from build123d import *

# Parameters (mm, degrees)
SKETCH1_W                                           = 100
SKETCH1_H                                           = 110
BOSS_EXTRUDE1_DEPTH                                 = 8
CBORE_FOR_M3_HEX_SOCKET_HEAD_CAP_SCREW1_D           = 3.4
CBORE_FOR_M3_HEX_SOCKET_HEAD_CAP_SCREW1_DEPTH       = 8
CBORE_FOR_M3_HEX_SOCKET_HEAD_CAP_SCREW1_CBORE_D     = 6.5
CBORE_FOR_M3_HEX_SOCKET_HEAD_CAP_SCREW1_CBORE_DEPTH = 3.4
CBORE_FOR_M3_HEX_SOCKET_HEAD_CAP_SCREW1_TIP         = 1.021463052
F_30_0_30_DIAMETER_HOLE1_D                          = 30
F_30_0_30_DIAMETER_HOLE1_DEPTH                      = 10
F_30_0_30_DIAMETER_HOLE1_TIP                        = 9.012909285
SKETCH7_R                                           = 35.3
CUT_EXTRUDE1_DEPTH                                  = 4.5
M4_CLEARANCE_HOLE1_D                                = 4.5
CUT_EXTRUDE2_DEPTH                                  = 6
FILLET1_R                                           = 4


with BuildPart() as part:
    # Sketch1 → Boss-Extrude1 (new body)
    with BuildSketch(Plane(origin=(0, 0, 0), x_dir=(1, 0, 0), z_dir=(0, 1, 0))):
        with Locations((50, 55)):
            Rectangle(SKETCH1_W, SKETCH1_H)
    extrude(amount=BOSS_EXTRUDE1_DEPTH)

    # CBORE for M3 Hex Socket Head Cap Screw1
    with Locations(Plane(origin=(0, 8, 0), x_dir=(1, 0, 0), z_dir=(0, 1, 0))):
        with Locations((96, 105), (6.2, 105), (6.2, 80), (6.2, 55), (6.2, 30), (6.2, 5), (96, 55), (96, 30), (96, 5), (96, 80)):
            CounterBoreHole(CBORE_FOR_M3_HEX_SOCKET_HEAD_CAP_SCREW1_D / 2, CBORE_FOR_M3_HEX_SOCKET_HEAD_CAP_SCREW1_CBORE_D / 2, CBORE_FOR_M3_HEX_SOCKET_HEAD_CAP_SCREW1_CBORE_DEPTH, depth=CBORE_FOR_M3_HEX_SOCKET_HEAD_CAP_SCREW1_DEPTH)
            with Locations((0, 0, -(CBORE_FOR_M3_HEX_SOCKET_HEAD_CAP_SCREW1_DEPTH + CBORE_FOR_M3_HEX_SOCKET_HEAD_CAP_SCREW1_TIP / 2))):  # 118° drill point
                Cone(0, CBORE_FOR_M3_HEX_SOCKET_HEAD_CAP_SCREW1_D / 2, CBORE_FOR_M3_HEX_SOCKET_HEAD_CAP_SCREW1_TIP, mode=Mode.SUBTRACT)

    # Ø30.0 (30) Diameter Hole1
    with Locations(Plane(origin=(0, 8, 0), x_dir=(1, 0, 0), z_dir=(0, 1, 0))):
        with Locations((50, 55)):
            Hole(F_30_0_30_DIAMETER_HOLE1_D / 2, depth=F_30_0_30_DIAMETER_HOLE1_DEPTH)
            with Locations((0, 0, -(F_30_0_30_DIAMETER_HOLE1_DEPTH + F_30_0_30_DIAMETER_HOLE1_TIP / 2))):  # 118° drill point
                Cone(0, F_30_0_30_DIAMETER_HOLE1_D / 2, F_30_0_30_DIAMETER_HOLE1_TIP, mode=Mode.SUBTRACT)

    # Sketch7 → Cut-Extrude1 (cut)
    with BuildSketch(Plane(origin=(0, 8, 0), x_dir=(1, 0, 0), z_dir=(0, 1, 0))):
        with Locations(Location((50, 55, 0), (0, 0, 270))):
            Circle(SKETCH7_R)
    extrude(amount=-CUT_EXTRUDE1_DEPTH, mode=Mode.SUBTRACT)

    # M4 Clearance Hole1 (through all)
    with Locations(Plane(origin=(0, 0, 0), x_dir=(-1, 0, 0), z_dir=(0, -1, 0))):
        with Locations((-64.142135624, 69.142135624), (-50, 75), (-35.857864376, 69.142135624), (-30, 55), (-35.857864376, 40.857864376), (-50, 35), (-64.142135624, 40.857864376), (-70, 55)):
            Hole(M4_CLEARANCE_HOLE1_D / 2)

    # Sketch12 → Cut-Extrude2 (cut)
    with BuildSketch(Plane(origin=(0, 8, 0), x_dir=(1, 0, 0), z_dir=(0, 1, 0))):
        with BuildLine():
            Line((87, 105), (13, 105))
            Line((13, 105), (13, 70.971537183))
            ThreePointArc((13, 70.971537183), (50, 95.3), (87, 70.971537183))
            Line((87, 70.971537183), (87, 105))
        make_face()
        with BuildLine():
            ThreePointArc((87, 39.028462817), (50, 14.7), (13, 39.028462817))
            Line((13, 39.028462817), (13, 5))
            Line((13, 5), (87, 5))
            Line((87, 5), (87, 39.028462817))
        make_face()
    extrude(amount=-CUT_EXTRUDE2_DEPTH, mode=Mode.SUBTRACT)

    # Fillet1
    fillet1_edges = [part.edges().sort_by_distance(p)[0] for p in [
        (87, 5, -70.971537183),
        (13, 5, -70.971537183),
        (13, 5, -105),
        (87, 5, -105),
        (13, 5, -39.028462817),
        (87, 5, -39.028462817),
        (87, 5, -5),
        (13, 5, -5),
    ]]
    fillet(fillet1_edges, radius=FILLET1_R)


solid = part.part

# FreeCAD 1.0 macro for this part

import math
import FreeCAD as App
import Part
import Sketcher
from FreeCAD import Vector
Q = App.Units.Quantity


def edges_at(feature, points):
    """Names of the edges that pass closest to the given points."""
    edges = feature.Shape.Edges
    near = lambda p: min(range(len(edges)), key=lambda i: edges[i].distToShape(Part.Vertex(*p))[0])
    return sorted({f"Edge{near(p) + 1}" for p in points})


def add_polygon(sketch, points):
    """Adds a closed chain of lines whose ends are joined by coincident constraints."""
    first, n = sketch.GeometryCount, len(points)
    for a, b in zip(points, points[1:] + points[:1]):
        sketch.addGeometry(Part.LineSegment(App.Vector(*a, 0), App.Vector(*b, 0)), False)
    for i in range(n):
        sketch.addConstraint(Sketcher.Constraint("Coincident", first + i, 2, first + (i + 1) % n, 1))

doc = App.newDocument("Part")
body = doc.addObject("PartDesign::Body", "Body")

# Sketch on XZ plane
sketch1 = body.newObject("Sketcher::SketchObject", "Sketch")
sketch1.AttachmentSupport = (doc.getObject("XZ_Plane"), [""])
sketch1.MapMode = "FlatFace"
add_polygon(sketch1, [(0, -110), (0, 0), (100, 0), (100, -110)])  # lines 0-3
sketch1.addConstraint(Sketcher.Constraint("Vertical", 0))
sketch1.addConstraint(Sketcher.Constraint("Horizontal", 1))
sketch1.addConstraint(Sketcher.Constraint("Vertical", 2))
sketch1.addConstraint(Sketcher.Constraint("Horizontal", 3))
sketch1.addConstraint(Sketcher.Constraint("Coincident", 0, 2, -1, 1))
sketch1.addConstraint(Sketcher.Constraint("DistanceX", 1, 1, 1, 2, Q("100 mm")))
sketch1.addConstraint(Sketcher.Constraint("DistanceY", 0, 1, 0, 2, Q("110 mm")))
pad1 = body.newObject("PartDesign::Pad", "Pad")
pad1.Profile = sketch1
pad1.Length = 8
pad1.Reversed = True

# Sketch on XZ plane
sketch2 = body.newObject("Sketcher::SketchObject", "Sketch001")
sketch2.AttachmentSupport = (doc.getObject("XZ_Plane"), [""])
sketch2.MapMode = "FlatFace"
sketch2.AttachmentOffset = App.Placement(Vector(0, 0, -8), App.Rotation())
sketch2.addGeometry(Part.Circle(Vector(96, -105, 0), Vector(0, 0, 1), 1.7), False)
sketch2.addGeometry(Part.Circle(Vector(6.2, -105, 0), Vector(0, 0, 1), 1.7), False)
sketch2.addGeometry(Part.Circle(Vector(6.2, -80, 0), Vector(0, 0, 1), 1.7), False)
sketch2.addGeometry(Part.Circle(Vector(6.2, -55, 0), Vector(0, 0, 1), 1.7), False)
sketch2.addGeometry(Part.Circle(Vector(6.2, -30, 0), Vector(0, 0, 1), 1.7), False)
sketch2.addGeometry(Part.Circle(Vector(6.2, -5, 0), Vector(0, 0, 1), 1.7), False)
sketch2.addGeometry(Part.Circle(Vector(96, -55, 0), Vector(0, 0, 1), 1.7), False)
sketch2.addGeometry(Part.Circle(Vector(96, -30, 0), Vector(0, 0, 1), 1.7), False)
sketch2.addGeometry(Part.Circle(Vector(96, -5, 0), Vector(0, 0, 1), 1.7), False)
sketch2.addGeometry(Part.Circle(Vector(96, -80, 0), Vector(0, 0, 1), 1.7), False)
sketch2.addConstraint(Sketcher.Constraint("Equal", 0, 1))
sketch2.addConstraint(Sketcher.Constraint("Equal", 1, 2))
sketch2.addConstraint(Sketcher.Constraint("Equal", 2, 3))
sketch2.addConstraint(Sketcher.Constraint("Equal", 3, 4))
sketch2.addConstraint(Sketcher.Constraint("Equal", 4, 5))
sketch2.addConstraint(Sketcher.Constraint("Equal", 5, 6))
sketch2.addConstraint(Sketcher.Constraint("Equal", 6, 7))
sketch2.addConstraint(Sketcher.Constraint("Equal", 7, 8))
sketch2.addConstraint(Sketcher.Constraint("Equal", 8, 9))
sketch2.addConstraint(Sketcher.Constraint("Horizontal", 0, 3, 1, 3))
sketch2.addConstraint(Sketcher.Constraint("Horizontal", 3, 3, 6, 3))
sketch2.addConstraint(Sketcher.Constraint("Horizontal", 4, 3, 7, 3))
sketch2.addConstraint(Sketcher.Constraint("Horizontal", 5, 3, 8, 3))
sketch2.addConstraint(Sketcher.Constraint("Horizontal", 2, 3, 9, 3))
sketch2.addConstraint(Sketcher.Constraint("Vertical", 1, 3, 2, 3))
sketch2.addConstraint(Sketcher.Constraint("Vertical", 2, 3, 3, 3))
sketch2.addConstraint(Sketcher.Constraint("Vertical", 3, 3, 4, 3))
sketch2.addConstraint(Sketcher.Constraint("Vertical", 4, 3, 5, 3))
sketch2.addConstraint(Sketcher.Constraint("Vertical", 0, 3, 6, 3))
sketch2.addConstraint(Sketcher.Constraint("Vertical", 6, 3, 7, 3))
sketch2.addConstraint(Sketcher.Constraint("Vertical", 7, 3, 8, 3))
sketch2.addConstraint(Sketcher.Constraint("Vertical", 8, 3, 9, 3))
sketch2.addConstraint(Sketcher.Constraint("Diameter", 0, Q("3.4 mm")))
sketch2.addConstraint(Sketcher.Constraint("DistanceX", -1, 1, 0, 3, Q("96 mm")))
sketch2.addConstraint(Sketcher.Constraint("DistanceY", 0, 3, -1, 1, Q("105 mm")))
sketch2.addConstraint(Sketcher.Constraint("DistanceY", 2, 3, -1, 1, Q("80 mm")))
sketch2.addConstraint(Sketcher.Constraint("DistanceY", 3, 3, -1, 1, Q("55 mm")))
sketch2.addConstraint(Sketcher.Constraint("DistanceY", 4, 3, -1, 1, Q("30 mm")))
sketch2.addConstraint(Sketcher.Constraint("DistanceY", 5, 3, -1, 1, Q("5 mm")))
sketch2.addConstraint(Sketcher.Constraint("DistanceX", -1, 1, 1, 3, Q("6.2 mm")))
doc.recompute()
hole = body.newObject("PartDesign::Hole", "Hole")
hole.Profile = sketch2
hole.ThreadType = "None"
hole.Diameter = 3.4
hole.DepthType = "Dimension"
hole.Depth = 8
hole.DrillPoint = "Angled"
hole.DrillPointAngle = 118
hole.HoleCutType = "Counterbore"
hole.HoleCutDiameter = 6.5
hole.HoleCutDepth = 3.4
hole.Reversed = True

# Sketch on XZ plane
sketch3 = body.newObject("Sketcher::SketchObject", "Sketch002")
sketch3.AttachmentSupport = (doc.getObject("XZ_Plane"), [""])
sketch3.MapMode = "FlatFace"
sketch3.AttachmentOffset = App.Placement(Vector(0, 0, -8), App.Rotation())
sketch3.addGeometry(Part.Circle(Vector(50, -55, 0), Vector(0, 0, 1), 15), False)
sketch3.addConstraint(Sketcher.Constraint("Diameter", 0, Q("30 mm")))
sketch3.addConstraint(Sketcher.Constraint("DistanceX", -1, 1, 0, 3, Q("50 mm")))
sketch3.addConstraint(Sketcher.Constraint("DistanceY", 0, 3, -1, 1, Q("55 mm")))
doc.recompute()
hole2 = body.newObject("PartDesign::Hole", "Hole001")
hole2.Profile = sketch3
hole2.ThreadType = "None"
hole2.Diameter = 30
hole2.DepthType = "Dimension"
hole2.Depth = 10
hole2.DrillPoint = "Angled"
hole2.DrillPointAngle = 118
hole2.Reversed = True

# Sketch on XZ plane
sketch4 = body.newObject("Sketcher::SketchObject", "Sketch003")
sketch4.AttachmentSupport = (doc.getObject("XZ_Plane"), [""])
sketch4.MapMode = "FlatFace"
sketch4.AttachmentOffset = App.Placement(Vector(0, 0, -8), App.Rotation())
sketch4.addGeometry(Part.Circle(Vector(50, -55, 0), Vector(0, 0, 1), 35.3), False)
sketch4.addConstraint(Sketcher.Constraint("Diameter", 0, Q("70.6 mm")))
sketch4.addConstraint(Sketcher.Constraint("DistanceX", -1, 1, 0, 3, Q("50 mm")))
sketch4.addConstraint(Sketcher.Constraint("DistanceY", 0, 3, -1, 1, Q("55 mm")))
pocket1 = body.newObject("PartDesign::Pocket", "Pocket")
pocket1.Profile = sketch4
pocket1.Length = 4.5
pocket1.Reversed = True

# Sketch on XZ plane
sketch5 = body.newObject("Sketcher::SketchObject", "Sketch004")
sketch5.AttachmentSupport = (doc.getObject("XZ_Plane"), [""])
sketch5.MapMode = "FlatFace"
sketch5.addGeometry(Part.Circle(Vector(64.142136, -69.142136, 0), Vector(0, 0, 1), 2.25), False)
sketch5.addGeometry(Part.Circle(Vector(50, -75, 0), Vector(0, 0, 1), 2.25), False)
sketch5.addGeometry(Part.Circle(Vector(35.857864, -69.142136, 0), Vector(0, 0, 1), 2.25), False)
sketch5.addGeometry(Part.Circle(Vector(30, -55, 0), Vector(0, 0, 1), 2.25), False)
sketch5.addGeometry(Part.Circle(Vector(35.857864, -40.857864, 0), Vector(0, 0, 1), 2.25), False)
sketch5.addGeometry(Part.Circle(Vector(50, -35, 0), Vector(0, 0, 1), 2.25), False)
sketch5.addGeometry(Part.Circle(Vector(64.142136, -40.857864, 0), Vector(0, 0, 1), 2.25), False)
sketch5.addGeometry(Part.Circle(Vector(70, -55, 0), Vector(0, 0, 1), 2.25), False)
sketch5.addConstraint(Sketcher.Constraint("Equal", 0, 1))
sketch5.addConstraint(Sketcher.Constraint("Equal", 1, 2))
sketch5.addConstraint(Sketcher.Constraint("Equal", 2, 3))
sketch5.addConstraint(Sketcher.Constraint("Equal", 3, 4))
sketch5.addConstraint(Sketcher.Constraint("Equal", 4, 5))
sketch5.addConstraint(Sketcher.Constraint("Equal", 5, 6))
sketch5.addConstraint(Sketcher.Constraint("Equal", 6, 7))
sketch5.addConstraint(Sketcher.Constraint("Horizontal", 0, 3, 2, 3))
sketch5.addConstraint(Sketcher.Constraint("Horizontal", 4, 3, 6, 3))
sketch5.addConstraint(Sketcher.Constraint("Horizontal", 3, 3, 7, 3))
sketch5.addConstraint(Sketcher.Constraint("Vertical", 2, 3, 4, 3))
sketch5.addConstraint(Sketcher.Constraint("Vertical", 1, 3, 5, 3))
sketch5.addConstraint(Sketcher.Constraint("Vertical", 0, 3, 6, 3))
sketch5.addConstraint(Sketcher.Constraint("Diameter", 0, Q("4.5 mm")))
sketch5.addConstraint(Sketcher.Constraint("DistanceX", -1, 1, 1, 3, Q("50 mm")))
sketch5.addConstraint(Sketcher.Constraint("DistanceY", 1, 3, -1, 1, Q("75 mm")))
sketch5.addConstraint(Sketcher.Constraint("DistanceX", -1, 1, 3, 3, Q("30 mm")))
sketch5.addConstraint(Sketcher.Constraint("DistanceY", 3, 3, -1, 1, Q("55 mm")))
sketch5.addConstraint(Sketcher.Constraint("DistanceY", 5, 3, -1, 1, Q("35 mm")))
sketch5.addConstraint(Sketcher.Constraint("DistanceX", -1, 1, 7, 3, Q("70 mm")))
sketch5.addConstraint(Sketcher.Constraint("DistanceX", 2, 3, 0, 3, Q("28.284271 mm")))
sketch5.addConstraint(Sketcher.Constraint("DistanceY", 2, 3, 4, 3, Q("28.284271 mm")))
sketch5.addConstraint(Sketcher.Constraint("DistanceX", -1, 1, 0, 3, Q("64.142136 mm")))
sketch5.addConstraint(Sketcher.Constraint("DistanceY", 0, 3, -1, 1, Q("69.142136 mm")))
doc.recompute()
hole3 = body.newObject("PartDesign::Hole", "Hole002")
hole3.Profile = sketch5
hole3.ThreadType = "None"
hole3.Diameter = 4.5
hole3.DepthType = "ThroughAll"

# Sketch on XZ plane
sketch6 = body.newObject("Sketcher::SketchObject", "Sketch005")
sketch6.AttachmentSupport = (doc.getObject("XZ_Plane"), [""])
sketch6.MapMode = "FlatFace"
sketch6.AttachmentOffset = App.Placement(Vector(0, 0, -8), App.Rotation())
sketch6.addGeometry(Part.LineSegment(Vector(87, -105, 0), Vector(13, -105, 0)), False)
sketch6.addGeometry(Part.LineSegment(Vector(13, -105, 0), Vector(13, -70.971537, 0)), False)
sketch6.addGeometry(Part.ArcOfCircle(Part.Circle(Vector(50, -55, 0), Vector(0, 0, 1), 40.3), math.radians(-156.651921), math.radians(-23.348079)), False)
sketch6.addGeometry(Part.LineSegment(Vector(87, -70.971537, 0), Vector(87, -105, 0)), False)
sketch6.addGeometry(Part.ArcOfCircle(Part.Circle(Vector(50, -55, 0), Vector(0, 0, 1), 40.3), math.radians(23.348079), math.radians(156.651921)), False)
sketch6.addGeometry(Part.LineSegment(Vector(13, -39.028463, 0), Vector(13, -5, 0)), False)
sketch6.addGeometry(Part.LineSegment(Vector(13, -5, 0), Vector(87, -5, 0)), False)
sketch6.addGeometry(Part.LineSegment(Vector(87, -5, 0), Vector(87, -39.028463, 0)), False)
sketch6.addConstraint(Sketcher.Constraint("Coincident", 0, 2, 1, 1))
sketch6.addConstraint(Sketcher.Constraint("Coincident", 1, 2, 2, 1))
sketch6.addConstraint(Sketcher.Constraint("Coincident", 2, 2, 3, 1))
sketch6.addConstraint(Sketcher.Constraint("Coincident", 3, 2, 0, 1))
sketch6.addConstraint(Sketcher.Constraint("Coincident", 4, 2, 5, 1))
sketch6.addConstraint(Sketcher.Constraint("Coincident", 5, 2, 6, 1))
sketch6.addConstraint(Sketcher.Constraint("Coincident", 6, 2, 7, 1))
sketch6.addConstraint(Sketcher.Constraint("Coincident", 7, 2, 4, 1))
sketch6.addConstraint(Sketcher.Constraint("Horizontal", 0))
sketch6.addConstraint(Sketcher.Constraint("Vertical", 1))
sketch6.addConstraint(Sketcher.Constraint("Vertical", 3))
sketch6.addConstraint(Sketcher.Constraint("Vertical", 5))
sketch6.addConstraint(Sketcher.Constraint("Horizontal", 6))
sketch6.addConstraint(Sketcher.Constraint("Vertical", 7))
sketch6.addConstraint(Sketcher.Constraint("Coincident", 4, 3, 2, 3))
sketch6.addConstraint(Sketcher.Constraint("Equal", 2, 4))
sketch6.addConstraint(Sketcher.Constraint("Horizontal", 1, 2, 2, 2))
sketch6.addConstraint(Sketcher.Constraint("Horizontal", 4, 2, 7, 2))
sketch6.addConstraint(Sketcher.Constraint("Vertical", 1, 2, 4, 2))
sketch6.addConstraint(Sketcher.Constraint("Equal", 3, 5))
sketch6.addConstraint(Sketcher.Constraint("Radius", 2, Q("40.3 mm")))
sketch6.addConstraint(Sketcher.Constraint("DistanceX", 0, 2, 0, 1, Q("74 mm")))
sketch6.addConstraint(Sketcher.Constraint("DistanceX", -1, 1, 2, 3, Q("50 mm")))
sketch6.addConstraint(Sketcher.Constraint("DistanceY", 2, 3, -1, 1, Q("55 mm")))
sketch6.addConstraint(Sketcher.Constraint("DistanceY", 0, 2, -1, 1, Q("105 mm")))
pocket2 = body.newObject("PartDesign::Pocket", "Pocket001")
pocket2.Profile = sketch6
pocket2.Length = 6
pocket2.Reversed = True
doc.recompute()

fillet = body.newObject("PartDesign::Fillet", "Fillet")
fillet.Base = (pocket2, edges_at(pocket2, [
    (87, 5, -70.972),
    (13, 5, -70.972),
    (13, 5, -105),
    (87, 5, -105),
    (13, 5, -39.028),
    (87, 5, -39.028),
    (87, 5, -5),
    (13, 5, -5),
]))
fillet.Radius = 4

doc.recompute()
